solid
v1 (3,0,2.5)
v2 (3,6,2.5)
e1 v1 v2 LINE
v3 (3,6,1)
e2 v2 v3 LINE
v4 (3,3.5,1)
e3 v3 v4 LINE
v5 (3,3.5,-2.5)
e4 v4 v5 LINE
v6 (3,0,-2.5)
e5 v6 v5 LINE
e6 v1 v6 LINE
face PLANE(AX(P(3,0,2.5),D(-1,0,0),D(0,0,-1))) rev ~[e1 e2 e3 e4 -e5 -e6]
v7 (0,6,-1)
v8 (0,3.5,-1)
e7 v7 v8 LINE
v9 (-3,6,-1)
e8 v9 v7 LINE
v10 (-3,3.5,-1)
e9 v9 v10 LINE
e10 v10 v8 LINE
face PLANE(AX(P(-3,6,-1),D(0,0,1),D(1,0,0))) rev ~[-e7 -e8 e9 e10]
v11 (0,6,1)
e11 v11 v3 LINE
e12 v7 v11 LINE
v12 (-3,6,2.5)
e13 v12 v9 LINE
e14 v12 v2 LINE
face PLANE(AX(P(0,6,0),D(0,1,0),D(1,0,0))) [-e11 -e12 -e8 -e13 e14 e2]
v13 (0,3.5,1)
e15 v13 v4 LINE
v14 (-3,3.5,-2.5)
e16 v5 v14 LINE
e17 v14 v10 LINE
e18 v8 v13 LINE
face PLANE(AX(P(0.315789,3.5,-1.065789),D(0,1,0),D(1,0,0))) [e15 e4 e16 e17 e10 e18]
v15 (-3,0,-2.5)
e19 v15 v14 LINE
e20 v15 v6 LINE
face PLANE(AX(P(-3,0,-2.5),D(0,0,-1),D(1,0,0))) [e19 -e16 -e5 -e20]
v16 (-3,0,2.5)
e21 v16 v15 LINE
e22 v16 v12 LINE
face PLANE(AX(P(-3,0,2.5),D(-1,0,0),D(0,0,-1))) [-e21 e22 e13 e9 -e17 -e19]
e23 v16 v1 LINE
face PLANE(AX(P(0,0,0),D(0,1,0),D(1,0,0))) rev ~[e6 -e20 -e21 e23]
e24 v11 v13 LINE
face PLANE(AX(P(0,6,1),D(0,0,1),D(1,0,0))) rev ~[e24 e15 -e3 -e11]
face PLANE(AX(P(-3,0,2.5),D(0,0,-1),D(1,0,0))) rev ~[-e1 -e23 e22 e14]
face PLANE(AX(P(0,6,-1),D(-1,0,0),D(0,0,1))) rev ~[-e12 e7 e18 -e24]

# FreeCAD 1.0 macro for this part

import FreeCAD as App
import Part
import Sketcher
from FreeCAD import Vector
Q = App.Units.Quantity

doc = App.newDocument("Part")
params = doc.addObject("Spreadsheet::Sheet", "Params")
for row, (alias, value) in enumerate([
    ("sketch1_width", "6 mm"),
    ("sketch1_height", "5 mm"),
    ("pad1_length", "6 mm"),
    ("sketch2_width", "3 mm"),
    ("sketch2_height", "2 mm"),
    ("sketch2_height2", "3.5 mm"),
    ("pocket1_length", "2.5 mm"),
], start=1):
    params.set(f"A{row}", alias)
    params.set(f"B{row}", "=" + value)
    params.setAlias(f"B{row}", alias)

body = doc.addObject("PartDesign::Body", "Body")

sketch1 = body.newObject("Sketcher::SketchObject", "Sketch")
sketch1.AttachmentSupport = (doc.getObject("XZ_Plane"), [""])
sketch1.MapMode = "FlatFace"
sketch1.addGeometry(Part.LineSegment(Vector(-3, -2, 0), Vector(-3, 2, 0)), False)
sketch1.addGeometry(Part.LineSegment(Vector(-3, 2, 0), Vector(3, 2, 0)), False)
sketch1.addGeometry(Part.LineSegment(Vector(3, 2, 0), Vector(3, -2, 0)), False)
sketch1.addGeometry(Part.LineSegment(Vector(3, -2, 0), Vector(-3, -2, 0)), False)
sketch1.addConstraint(Sketcher.Constraint("Coincident", 0, 2, 1, 1))
sketch1.addConstraint(Sketcher.Constraint("Coincident", 1, 2, 2, 1))
sketch1.addConstraint(Sketcher.Constraint("Coincident", 2, 2, 3, 1))
sketch1.addConstraint(Sketcher.Constraint("Coincident", 3, 2, 0, 1))
sketch1.addConstraint(Sketcher.Constraint("Vertical", 0))
sketch1.addConstraint(Sketcher.Constraint("Horizontal", 1))
sketch1.addConstraint(Sketcher.Constraint("Vertical", 2))
sketch1.addConstraint(Sketcher.Constraint("Horizontal", 3))
sketch1.addConstraint(Sketcher.Constraint("Symmetric", 0, 2, 2, 2, -1, 1))
sketch1.addConstraint(Sketcher.Constraint("DistanceX", 1, 1, 1, 2, Q("6 mm")))
sketch1.addConstraint(Sketcher.Constraint("DistanceY", 0, 1, 0, 2, Q("5 mm")))
sketch1.setExpression("Constraints[9]", "Params.sketch1_width")
sketch1.setExpression("Constraints[10]", "Params.sketch1_height")
pad1 = body.newObject("PartDesign::Pad", "Pad")
pad1.Profile = sketch1
pad1.setExpression("Length", "Params.pad1_length")
pad1.Reversed = True

sketch2 = body.newObject("Sketcher::SketchObject", "Sketch001")
sketch2.AttachmentSupport = (doc.getObject("XZ_Plane"), [""])
sketch2.MapMode = "FlatFace"
sketch2.AttachmentOffset = App.Placement(Vector(0, 0, -6), App.Rotation())
sketch2.addGeometry(Part.LineSegment(Vector(0, 1, 0), Vector(3, 1, 0)), False)
sketch2.addGeometry(Part.LineSegment(Vector(3, 1, 0), Vector(3, -2.5, 0)), False)
sketch2.addGeometry(Part.LineSegment(Vector(3, -2.5, 0), Vector(-3, -2.5, 0)), False)
sketch2.addGeometry(Part.LineSegment(Vector(-3, -2.5, 0), Vector(-3, -1, 0)), False)
sketch2.addGeometry(Part.LineSegment(Vector(-3, -1, 0), Vector(0, -1, 0)), False)
sketch2.addGeometry(Part.LineSegment(Vector(0, -1, 0), Vector(0, 1, 0)), False)
sketch2.addConstraint(Sketcher.Constraint("Coincident", 0, 2, 1, 1))
sketch2.addConstraint(Sketcher.Constraint("Coincident", 1, 2, 2, 1))
sketch2.addConstraint(Sketcher.Constraint("Coincident", 2, 2, 3, 1))
sketch2.addConstraint(Sketcher.Constraint("Coincident", 3, 2, 4, 1))
sketch2.addConstraint(Sketcher.Constraint("Coincident", 4, 2, 5, 1))
sketch2.addConstraint(Sketcher.Constraint("Coincident", 5, 2, 0, 1))
sketch2.addConstraint(Sketcher.Constraint("Horizontal", 0))
sketch2.addConstraint(Sketcher.Constraint("Vertical", 1))
sketch2.addConstraint(Sketcher.Constraint("Horizontal", 2))
sketch2.addConstraint(Sketcher.Constraint("Vertical", 3))
sketch2.addConstraint(Sketcher.Constraint("Horizontal", 4))
sketch2.addConstraint(Sketcher.Constraint("Vertical", 5))
sketch2.addConstraint(Sketcher.Constraint("Symmetric", 0, 2, 3, 2, -1, 1))
sketch2.addConstraint(Sketcher.Constraint("PointOnObject", 4, 2, -2))
sketch2.addConstraint(Sketcher.Constraint("DistanceX", 0, 1, 0, 2, Q("3 mm")))
sketch2.addConstraint(Sketcher.Constraint("DistanceY", 5, 1, 5, 2, Q("2 mm")))
sketch2.addConstraint(Sketcher.Constraint("DistanceY", 1, 2, 1, 1, Q("3.5 mm")))
sketch2.setExpression("Constraints[14]", "Params.sketch2_width")
sketch2.setExpression("Constraints[15]", "Params.sketch2_height")
sketch2.setExpression("Constraints[16]", "Params.sketch2_height2")
pocket1 = body.newObject("PartDesign::Pocket", "Pocket")
pocket1.Profile = sketch2
pocket1.setExpression("Length", "Params.pocket1_length")
pocket1.Reversed = True

doc.recompute()
